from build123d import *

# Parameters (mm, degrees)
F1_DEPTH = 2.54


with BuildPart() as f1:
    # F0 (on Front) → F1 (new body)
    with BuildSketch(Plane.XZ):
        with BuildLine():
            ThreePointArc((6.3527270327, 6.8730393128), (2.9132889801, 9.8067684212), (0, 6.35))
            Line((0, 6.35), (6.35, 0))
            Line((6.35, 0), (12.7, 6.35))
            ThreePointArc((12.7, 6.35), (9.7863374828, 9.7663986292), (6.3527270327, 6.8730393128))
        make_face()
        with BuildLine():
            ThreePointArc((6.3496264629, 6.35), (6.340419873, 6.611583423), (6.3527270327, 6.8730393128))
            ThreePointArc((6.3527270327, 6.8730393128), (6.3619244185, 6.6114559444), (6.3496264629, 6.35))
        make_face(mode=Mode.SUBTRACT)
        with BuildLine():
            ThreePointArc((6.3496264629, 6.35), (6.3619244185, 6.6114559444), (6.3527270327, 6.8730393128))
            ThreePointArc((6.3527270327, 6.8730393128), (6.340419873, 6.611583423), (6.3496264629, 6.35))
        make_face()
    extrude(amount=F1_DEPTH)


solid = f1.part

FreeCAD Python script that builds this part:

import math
import FreeCAD as App
import Part
import Sketcher

V = App.Vector
Q = App.Units.Quantity

doc = App.newDocument("Part")
body = doc.addObject("PartDesign::Body", "Body")

sketch1 = body.newObject("Sketcher::SketchObject", "Sketch")
sketch1.AttachmentSupport = (doc.getObject("XZ_Plane"), [""])
sketch1.MapMode = "FlatFace"
sketch1.addGeometry(Part.LineSegment(V(6.35, 0, 0), V(12.7, 6.35, 0)), False)
sketch1.addGeometry(Part.ArcOfCircle(Part.Circle(V(9.524813, 6.592706, 0), V(0, 0, 1), 3.184449), math.radians(-4.371101), math.radians(174.94961)), False)
sketch1.addGeometry(Part.ArcOfCircle(Part.Circle(V(3.174813, 6.630349, 0), V(0, 0, 1), 3.187167), math.radians(4.367075), math.radians(185.046364)), False)
sketch1.addGeometry(Part.LineSegment(V(0, 6.35, 0), V(6.35, 0, 0)), False)
sketch1.addConstraint(Sketcher.Constraint("Coincident", 0, 2, 1, 1))
sketch1.addConstraint(Sketcher.Constraint("Coincident", 1, 2, 2, 1))
sketch1.addConstraint(Sketcher.Constraint("Coincident", 2, 2, 3, 1))
sketch1.addConstraint(Sketcher.Constraint("Coincident", 3, 2, 0, 1))
sketch1.addConstraint(Sketcher.Constraint("PointOnObject", 2, 2, -2))
sketch1.addConstraint(Sketcher.Constraint("PointOnObject", 3, 2, -1))
sketch1.addConstraint(Sketcher.Constraint("Perpendicular", 0, 3))
sketch1.addConstraint(Sketcher.Constraint("Horizontal", 0, 2, 2, 2))
sketch1.addConstraint(Sketcher.Constraint("Equal", 0, 3))
sketch1.addConstraint(Sketcher.Constraint("DistanceX", -1, 1, 0, 2, Q("0.5 in")))
sketch1.addConstraint(Sketcher.Constraint("DistanceX", 2, 3, 1, 3, Q("0.25 in")))
sketch1.addConstraint(Sketcher.Constraint("Radius", 1, Q("3.184449 mm")))
sketch1.addConstraint(Sketcher.Constraint("Radius", 2, Q("3.187167 mm")))
sketch1.addConstraint(Sketcher.Constraint("DistanceY", -1, 1, 2, 3, Q("6.630349 mm")))
pad1 = body.newObject("PartDesign::Pad", "Pad")
pad1.Profile = sketch1
pad1.Length = Q("0.1 in")

doc.recompute()
